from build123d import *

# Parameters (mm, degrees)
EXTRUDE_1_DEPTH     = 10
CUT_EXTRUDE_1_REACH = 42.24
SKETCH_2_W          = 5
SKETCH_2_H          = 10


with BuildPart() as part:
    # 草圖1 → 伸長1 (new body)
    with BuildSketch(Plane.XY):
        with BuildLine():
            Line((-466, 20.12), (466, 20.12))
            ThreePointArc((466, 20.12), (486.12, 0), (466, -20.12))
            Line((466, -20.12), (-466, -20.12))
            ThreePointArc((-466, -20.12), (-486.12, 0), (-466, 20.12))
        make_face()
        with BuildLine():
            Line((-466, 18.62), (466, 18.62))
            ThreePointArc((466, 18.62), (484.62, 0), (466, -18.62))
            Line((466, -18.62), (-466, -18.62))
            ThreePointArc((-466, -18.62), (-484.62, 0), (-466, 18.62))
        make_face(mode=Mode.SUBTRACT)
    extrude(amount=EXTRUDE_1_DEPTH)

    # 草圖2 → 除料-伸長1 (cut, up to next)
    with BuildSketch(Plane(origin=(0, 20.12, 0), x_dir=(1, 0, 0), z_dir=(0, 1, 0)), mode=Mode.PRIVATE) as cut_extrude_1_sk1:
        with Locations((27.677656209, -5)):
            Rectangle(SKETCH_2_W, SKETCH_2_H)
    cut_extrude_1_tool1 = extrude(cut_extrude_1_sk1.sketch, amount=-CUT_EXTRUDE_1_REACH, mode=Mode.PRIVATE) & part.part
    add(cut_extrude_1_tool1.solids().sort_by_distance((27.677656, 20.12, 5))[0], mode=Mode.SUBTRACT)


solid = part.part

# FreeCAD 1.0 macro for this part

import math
import FreeCAD as App
import Part
import Sketcher
Q = App.Units.Quantity


def add_polygon(sketch, points):
    """Adds a closed chain of lines whose ends are joined by coincident constraints."""
    first, n = sketch.GeometryCount, len(points)
    for a, b in zip(points, points[1:] + points[:1]):
        sketch.addGeometry(Part.LineSegment(App.Vector(*a, 0), App.Vector(*b, 0)), False)
    for i in range(n):
        sketch.addConstraint(Sketcher.Constraint("Coincident", first + i, 2, first + (i + 1) % n, 1))

doc = App.newDocument("Part")
body = doc.addObject("PartDesign::Body", "Body")

# Sketch on XY plane
sketch1 = body.newObject("Sketcher::SketchObject", "Sketch")
sketch1.AttachmentSupport = (doc.getObject("XY_Plane"), [""])
sketch1.MapMode = "FlatFace"
sketch1.addGeometry([
    Part.LineSegment(App.Vector(466, 20, 0), App.Vector(-466, 20, 0)),  # 0
    Part.ArcOfCircle(Part.Circle(App.Vector(-466, 0, 0), App.Vector(0, 0, 1), 20), math.radians(90), math.radians(270)),  # 1
    Part.LineSegment(App.Vector(-466, -20, 0), App.Vector(466, -20, 0)),  # 2
    Part.ArcOfCircle(Part.Circle(App.Vector(466, 0, 0), App.Vector(0, 0, 1), 20), math.radians(-90), math.radians(90)),  # 3
    Part.LineSegment(App.Vector(-466, 19, 0), App.Vector(466, 19, 0)),  # 4
    Part.ArcOfCircle(Part.Circle(App.Vector(466, 0, 0), App.Vector(0, 0, 1), 19), math.radians(-90), math.radians(90)),  # 5
    Part.LineSegment(App.Vector(466, -19, 0), App.Vector(-466, -19, 0)),  # 6
    Part.ArcOfCircle(Part.Circle(App.Vector(-466, 0, 0), App.Vector(0, 0, 1), 19), math.radians(90), math.radians(270)),  # 7
], False)
sketch1.addConstraint([
    Sketcher.Constraint("Tangent", 0, 2, 1, 1),
    Sketcher.Constraint("Tangent", 1, 2, 2, 1),
    Sketcher.Constraint("Tangent", 2, 2, 3, 1),
    Sketcher.Constraint("Tangent", 3, 2, 0, 1),
    Sketcher.Constraint("Tangent", 4, 2, 5, 2),
    Sketcher.Constraint("Tangent", 5, 1, 6, 1),
    Sketcher.Constraint("Tangent", 6, 2, 7, 2),
    Sketcher.Constraint("Tangent", 7, 1, 4, 1),
    Sketcher.Constraint("Horizontal", 0),
    Sketcher.Constraint("Horizontal", 2),
    Sketcher.Constraint("Horizontal", 4),
    Sketcher.Constraint("Horizontal", 6),
    Sketcher.Constraint("Coincident", 5, 3, 3, 3),
    Sketcher.Constraint("Symmetric", 1, 3, 3, 3, -1, 1),
    Sketcher.Constraint("Vertical", 7, 3, 0, 2),
    Sketcher.Constraint("DistanceX", 0, 2, 0, 1, Q("932 mm")),
    Sketcher.Constraint("Radius", 1, Q("20.12 mm")),
    Sketcher.Constraint("Radius", 5, Q("18.62 mm")),
])
pad1 = body.newObject("PartDesign::Pad", "Pad")
pad1.Profile = sketch1
pad1.Length = 10

# Sketch on XZ plane
sketch2 = body.newObject("Sketcher::SketchObject", "Sketch001")
sketch2.AttachmentSupport = (doc.getObject("XZ_Plane"), [""])
sketch2.MapMode = "FlatFace"
sketch2.AttachmentOffset = App.Placement(App.Vector(0, 0, -20.12), App.Rotation())
add_polygon(sketch2, [(25, 0), (25, 10), (30, 10), (30, 0)])  # lines 0-3
sketch2.addConstraint([
    Sketcher.Constraint("Vertical", 0),
    Sketcher.Constraint("Horizontal", 1),
    Sketcher.Constraint("Vertical", 2),
    Sketcher.Constraint("Horizontal", 3),
    Sketcher.Constraint("PointOnObject", 2, 2, -1),
    Sketcher.Constraint("DistanceX", 1, 1, 1, 2, Q("5 mm")),
    Sketcher.Constraint("DistanceY", 0, 1, 0, 2, Q("10 mm")),
    Sketcher.Constraint("DistanceX", -1, 1, 0, 2, Q("25.177656 mm")),
])
pocket1 = body.newObject("PartDesign::Pocket", "Pocket")
pocket1.Profile = sketch2
pocket1.Type = "UpToFirst"
pocket1.Reversed = True

doc.recompute()
